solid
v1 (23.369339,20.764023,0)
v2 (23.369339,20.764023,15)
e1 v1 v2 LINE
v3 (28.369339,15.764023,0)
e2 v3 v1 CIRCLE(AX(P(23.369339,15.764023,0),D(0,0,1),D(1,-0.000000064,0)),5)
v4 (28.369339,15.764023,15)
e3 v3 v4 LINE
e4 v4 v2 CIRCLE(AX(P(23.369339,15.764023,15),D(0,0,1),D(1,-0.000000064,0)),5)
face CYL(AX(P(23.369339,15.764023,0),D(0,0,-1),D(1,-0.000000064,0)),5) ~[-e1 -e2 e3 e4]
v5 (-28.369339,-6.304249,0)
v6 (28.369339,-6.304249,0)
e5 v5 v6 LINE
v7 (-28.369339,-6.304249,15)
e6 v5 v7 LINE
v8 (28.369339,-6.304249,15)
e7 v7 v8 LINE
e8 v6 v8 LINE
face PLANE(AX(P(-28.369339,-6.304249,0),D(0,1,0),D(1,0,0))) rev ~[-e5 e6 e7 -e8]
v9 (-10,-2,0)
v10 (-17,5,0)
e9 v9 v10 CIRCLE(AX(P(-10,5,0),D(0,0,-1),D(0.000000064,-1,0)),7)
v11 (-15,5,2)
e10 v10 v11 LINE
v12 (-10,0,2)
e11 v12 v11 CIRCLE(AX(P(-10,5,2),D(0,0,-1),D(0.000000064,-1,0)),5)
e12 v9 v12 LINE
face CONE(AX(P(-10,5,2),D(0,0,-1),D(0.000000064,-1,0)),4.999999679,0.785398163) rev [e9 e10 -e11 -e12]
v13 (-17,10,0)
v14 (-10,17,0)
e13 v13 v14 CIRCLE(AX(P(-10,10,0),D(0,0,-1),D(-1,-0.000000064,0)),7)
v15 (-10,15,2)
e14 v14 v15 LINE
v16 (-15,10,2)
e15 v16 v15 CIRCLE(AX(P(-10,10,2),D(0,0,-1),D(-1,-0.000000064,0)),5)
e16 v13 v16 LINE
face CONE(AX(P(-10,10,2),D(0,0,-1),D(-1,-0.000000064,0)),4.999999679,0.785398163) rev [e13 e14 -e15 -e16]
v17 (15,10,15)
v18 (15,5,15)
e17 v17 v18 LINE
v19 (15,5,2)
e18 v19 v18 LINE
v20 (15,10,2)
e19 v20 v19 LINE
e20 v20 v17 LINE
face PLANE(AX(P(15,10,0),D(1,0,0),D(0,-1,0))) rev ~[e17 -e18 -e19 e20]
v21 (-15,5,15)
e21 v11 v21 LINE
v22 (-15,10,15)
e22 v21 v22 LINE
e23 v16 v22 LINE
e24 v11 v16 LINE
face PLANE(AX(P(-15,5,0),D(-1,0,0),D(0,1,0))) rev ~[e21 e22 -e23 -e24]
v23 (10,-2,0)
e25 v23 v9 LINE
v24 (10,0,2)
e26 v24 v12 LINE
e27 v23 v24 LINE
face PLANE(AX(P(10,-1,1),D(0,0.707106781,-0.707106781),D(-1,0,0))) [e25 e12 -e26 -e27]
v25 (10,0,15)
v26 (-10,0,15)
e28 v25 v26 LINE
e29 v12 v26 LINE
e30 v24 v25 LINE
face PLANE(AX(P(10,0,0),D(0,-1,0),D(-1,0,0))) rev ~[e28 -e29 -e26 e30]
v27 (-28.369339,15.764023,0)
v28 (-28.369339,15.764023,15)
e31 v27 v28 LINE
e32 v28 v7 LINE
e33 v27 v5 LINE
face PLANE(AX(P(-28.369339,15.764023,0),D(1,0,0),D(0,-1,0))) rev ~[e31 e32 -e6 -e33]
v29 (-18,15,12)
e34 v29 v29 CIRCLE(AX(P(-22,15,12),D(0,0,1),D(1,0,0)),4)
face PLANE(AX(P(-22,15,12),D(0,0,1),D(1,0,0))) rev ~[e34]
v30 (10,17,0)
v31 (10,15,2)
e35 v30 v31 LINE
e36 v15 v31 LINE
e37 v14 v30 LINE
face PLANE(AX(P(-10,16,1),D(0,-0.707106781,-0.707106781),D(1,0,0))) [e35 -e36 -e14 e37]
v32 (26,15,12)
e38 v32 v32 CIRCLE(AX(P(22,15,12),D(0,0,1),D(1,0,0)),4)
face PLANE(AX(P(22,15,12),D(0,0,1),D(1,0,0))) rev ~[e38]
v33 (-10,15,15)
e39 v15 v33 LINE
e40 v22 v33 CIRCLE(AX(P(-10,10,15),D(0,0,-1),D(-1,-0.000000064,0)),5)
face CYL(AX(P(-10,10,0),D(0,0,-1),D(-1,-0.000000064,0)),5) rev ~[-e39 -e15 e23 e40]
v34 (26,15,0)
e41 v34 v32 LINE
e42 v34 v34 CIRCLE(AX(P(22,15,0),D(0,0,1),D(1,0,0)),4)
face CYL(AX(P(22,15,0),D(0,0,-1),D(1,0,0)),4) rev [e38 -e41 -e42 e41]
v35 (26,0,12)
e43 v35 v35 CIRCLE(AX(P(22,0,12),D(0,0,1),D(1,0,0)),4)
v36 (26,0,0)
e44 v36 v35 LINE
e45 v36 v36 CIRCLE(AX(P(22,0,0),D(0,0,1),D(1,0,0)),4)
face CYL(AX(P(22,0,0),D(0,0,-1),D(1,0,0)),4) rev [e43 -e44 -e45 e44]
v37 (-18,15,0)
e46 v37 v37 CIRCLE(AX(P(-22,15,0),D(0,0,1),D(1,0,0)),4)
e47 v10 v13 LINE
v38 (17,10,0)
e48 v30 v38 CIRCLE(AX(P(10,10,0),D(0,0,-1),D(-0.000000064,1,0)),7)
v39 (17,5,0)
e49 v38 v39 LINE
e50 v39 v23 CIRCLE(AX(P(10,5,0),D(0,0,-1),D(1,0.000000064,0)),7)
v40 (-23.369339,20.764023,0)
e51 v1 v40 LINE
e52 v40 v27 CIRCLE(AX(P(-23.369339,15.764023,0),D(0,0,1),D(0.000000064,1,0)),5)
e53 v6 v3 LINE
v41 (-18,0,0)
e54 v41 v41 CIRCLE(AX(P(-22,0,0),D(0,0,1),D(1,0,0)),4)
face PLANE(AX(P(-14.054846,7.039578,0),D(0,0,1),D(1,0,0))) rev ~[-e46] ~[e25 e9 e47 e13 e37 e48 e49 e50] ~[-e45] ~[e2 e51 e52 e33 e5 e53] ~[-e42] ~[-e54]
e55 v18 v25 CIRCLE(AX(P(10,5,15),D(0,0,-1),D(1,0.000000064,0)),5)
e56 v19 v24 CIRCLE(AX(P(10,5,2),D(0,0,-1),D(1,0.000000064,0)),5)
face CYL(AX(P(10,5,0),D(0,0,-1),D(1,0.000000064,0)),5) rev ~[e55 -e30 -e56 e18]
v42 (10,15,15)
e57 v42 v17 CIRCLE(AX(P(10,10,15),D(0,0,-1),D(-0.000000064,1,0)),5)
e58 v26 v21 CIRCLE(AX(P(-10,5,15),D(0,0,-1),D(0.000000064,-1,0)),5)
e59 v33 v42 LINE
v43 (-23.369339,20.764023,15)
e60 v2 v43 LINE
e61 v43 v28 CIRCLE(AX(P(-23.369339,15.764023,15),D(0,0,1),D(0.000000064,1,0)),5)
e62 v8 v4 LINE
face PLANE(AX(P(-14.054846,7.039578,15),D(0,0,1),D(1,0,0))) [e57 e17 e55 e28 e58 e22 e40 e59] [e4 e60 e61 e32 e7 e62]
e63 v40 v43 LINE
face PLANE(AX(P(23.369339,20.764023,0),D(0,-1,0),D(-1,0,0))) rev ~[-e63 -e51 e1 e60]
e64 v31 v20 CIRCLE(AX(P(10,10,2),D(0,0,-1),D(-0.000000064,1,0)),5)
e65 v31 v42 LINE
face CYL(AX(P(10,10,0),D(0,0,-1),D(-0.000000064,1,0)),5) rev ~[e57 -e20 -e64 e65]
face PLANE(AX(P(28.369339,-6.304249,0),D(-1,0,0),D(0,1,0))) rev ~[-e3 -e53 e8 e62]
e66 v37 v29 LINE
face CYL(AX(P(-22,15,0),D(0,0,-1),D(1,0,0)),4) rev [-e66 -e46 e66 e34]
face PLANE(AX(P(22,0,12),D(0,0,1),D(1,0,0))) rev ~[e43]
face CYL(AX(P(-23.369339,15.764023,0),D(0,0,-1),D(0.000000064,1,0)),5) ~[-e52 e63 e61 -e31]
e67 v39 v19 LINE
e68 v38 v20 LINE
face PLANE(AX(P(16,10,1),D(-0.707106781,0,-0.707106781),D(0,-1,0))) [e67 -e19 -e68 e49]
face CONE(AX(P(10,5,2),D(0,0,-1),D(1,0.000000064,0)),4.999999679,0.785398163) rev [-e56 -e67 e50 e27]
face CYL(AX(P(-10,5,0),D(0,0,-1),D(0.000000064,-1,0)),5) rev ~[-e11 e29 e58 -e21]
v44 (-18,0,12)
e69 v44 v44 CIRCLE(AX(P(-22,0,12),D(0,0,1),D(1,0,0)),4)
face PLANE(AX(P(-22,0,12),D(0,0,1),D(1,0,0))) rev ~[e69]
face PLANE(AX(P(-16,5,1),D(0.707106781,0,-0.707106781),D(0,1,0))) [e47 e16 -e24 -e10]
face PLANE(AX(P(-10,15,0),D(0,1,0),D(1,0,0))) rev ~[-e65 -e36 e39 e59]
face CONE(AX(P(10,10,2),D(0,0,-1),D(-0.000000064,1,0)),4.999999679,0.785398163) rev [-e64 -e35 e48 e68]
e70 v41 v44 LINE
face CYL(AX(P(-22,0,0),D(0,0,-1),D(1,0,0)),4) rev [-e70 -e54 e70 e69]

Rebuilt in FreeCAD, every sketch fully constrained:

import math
import FreeCAD as App
import Part
import Sketcher


def edges_at(feature, points):
    """Names of the edges that pass closest to the given points."""
    edges = feature.Shape.Edges
    near = lambda p: min(range(len(edges)), key=lambda i: edges[i].distToShape(Part.Vertex(*p))[0])
    return sorted({f"Edge{near(p) + 1}" for p in points})

doc = App.newDocument("Part")
params = doc.addObject("Spreadsheet::Sheet", "Params")
for row, (alias, value) in enumerate([
    ("sketch1_radius", "5 mm"),
    ("sketch1_width", "20 mm"),
    ("sketch1_height", "5 mm"),
    ("pad1_length", "15 mm"),
    ("sketch2_diameter", "8 mm"),
    ("pocket1_length", "12 mm"),
    ("chamfer_size", "2 mm"),
], start=1):
    params.set(f"A{row}", alias)
    params.set(f"B{row}", "=" + value)
    params.setAlias(f"B{row}", alias)

body = doc.addObject("PartDesign::Body", "Body")

sketch1 = body.newObject("Sketcher::SketchObject", "Sketch")
sketch1.AttachmentSupport = (doc.getObject("XY_Plane"), [""])
sketch1.MapMode = "FlatFace"
sketch1.addGeometry(Part.ArcOfCircle(Part.Circle(App.Vector(-23.369339, 15.764023, 0), App.Vector(0, 0, 1), 5), math.radians(89.999996), math.radians(180.000004)), False)
sketch1.addGeometry(Part.LineSegment(App.Vector(-28.369339, 15.764023, 0), App.Vector(-28.369339, -6.304249, 0)), False)
sketch1.addGeometry(Part.LineSegment(App.Vector(-28.369339, -6.304249, 0), App.Vector(28.369339, -6.304249, 0)), False)
sketch1.addGeometry(Part.LineSegment(App.Vector(28.369339, -6.304249, 0), App.Vector(28.369339, 15.764023, 0)), False)
sketch1.addGeometry(Part.ArcOfCircle(Part.Circle(App.Vector(23.369339, 15.764023, 0), App.Vector(0, 0, 1), 5), math.radians(-0.000004), math.radians(90.000004)), False)
sketch1.addGeometry(Part.LineSegment(App.Vector(23.369339, 20.764023, 0), App.Vector(-23.369339, 20.764023, 0)), False)
sketch1.addGeometry(Part.LineSegment(App.Vector(-10, 15, 0), App.Vector(10, 15, 0)), False)
sketch1.addGeometry(Part.ArcOfCircle(Part.Circle(App.Vector(10, 10, 0), App.Vector(0, 0, 1), 5), math.radians(-0.000004), math.radians(90.000004)), False)
sketch1.addGeometry(Part.LineSegment(App.Vector(15, 10, 0), App.Vector(15, 5, 0)), False)
sketch1.addGeometry(Part.ArcOfCircle(Part.Circle(App.Vector(10, 5, 0), App.Vector(0, 0, 1), 5), math.radians(-90.000004), math.radians(0.000004)), False)
sketch1.addGeometry(Part.LineSegment(App.Vector(10, 0, 0), App.Vector(-10, 0, 0)), False)
sketch1.addGeometry(Part.ArcOfCircle(Part.Circle(App.Vector(-10, 5, 0), App.Vector(0, 0, 1), 5), math.radians(179.999996), math.radians(270.000004)), False)
sketch1.addGeometry(Part.LineSegment(App.Vector(-15, 5, 0), App.Vector(-15, 10, 0)), False)
sketch1.addGeometry(Part.ArcOfCircle(Part.Circle(App.Vector(-10, 10, 0), App.Vector(0, 0, 1), 5), math.radians(89.999996), math.radians(180.000004)), False)
sketch1.addConstraint(Sketcher.Constraint("Tangent", 0, 2, 1, 1))
sketch1.addConstraint(Sketcher.Constraint("Coincident", 1, 2, 2, 1))
sketch1.addConstraint(Sketcher.Constraint("Coincident", 2, 2, 3, 1))
sketch1.addConstraint(Sketcher.Constraint("Tangent", 3, 2, 4, 1))
sketch1.addConstraint(Sketcher.Constraint("Tangent", 4, 2, 5, 1))
sketch1.addConstraint(Sketcher.Constraint("Tangent", 5, 2, 0, 1))
sketch1.addConstraint(Sketcher.Constraint("Tangent", 6, 2, 7, 2))
sketch1.addConstraint(Sketcher.Constraint("Tangent", 7, 1, 8, 1))
sketch1.addConstraint(Sketcher.Constraint("Tangent", 8, 2, 9, 2))
sketch1.addConstraint(Sketcher.Constraint("Tangent", 9, 1, 10, 1))
sketch1.addConstraint(Sketcher.Constraint("Tangent", 10, 2, 11, 2))
sketch1.addConstraint(Sketcher.Constraint("Tangent", 11, 1, 12, 1))
sketch1.addConstraint(Sketcher.Constraint("Tangent", 12, 2, 13, 2))
sketch1.addConstraint(Sketcher.Constraint("Tangent", 13, 1, 6, 1))
sketch1.addConstraint(Sketcher.Constraint("Vertical", 1))
sketch1.addConstraint(Sketcher.Constraint("Horizontal", 2))
sketch1.addConstraint(Sketcher.Constraint("Vertical", 3))
sketch1.addConstraint(Sketcher.Constraint("Horizontal", 5))
sketch1.addConstraint(Sketcher.Constraint("Horizontal", 6))
sketch1.addConstraint(Sketcher.Constraint("Vertical", 8))
sketch1.addConstraint(Sketcher.Constraint("Horizontal", 10))
sketch1.addConstraint(Sketcher.Constraint("Vertical", 12))
sketch1.addConstraint(Sketcher.Constraint("Equal", 0, 4))
sketch1.addConstraint(Sketcher.Constraint("Equal", 4, 7))
sketch1.addConstraint(Sketcher.Constraint("Equal", 7, 9))
sketch1.addConstraint(Sketcher.Constraint("Equal", 9, 11))
sketch1.addConstraint(Sketcher.Constraint("Equal", 11, 13))
sketch1.addConstraint(Sketcher.Constraint("Symmetric", 9, 1, 10, 2, -1, 1))
sketch1.addConstraint(Sketcher.Constraint("Radius", 0, 5.0))
sketch1.addConstraint(Sketcher.Constraint("DistanceX", 6, 1, 6, 2, 20.0))
sketch1.addConstraint(Sketcher.Constraint("DistanceY", 8, 2, 8, 1, 5.0))
sketch1.addConstraint(Sketcher.Constraint("DistanceX", 2, 1, 2, 2, 56.738678))
sketch1.addConstraint(Sketcher.Constraint("DistanceY", 1, 2, 1, 1, 22.068272))
sketch1.addConstraint(Sketcher.Constraint("DistanceX", 0, 3, -1, 1, 23.369339))
sketch1.addConstraint(Sketcher.Constraint("DistanceY", 1, 2, -1, 1, 6.304249))
sketch1.setExpression("Constraints[28]", "Params.sketch1_radius")
sketch1.setExpression("Constraints[29]", "Params.sketch1_width")
sketch1.setExpression("Constraints[30]", "Params.sketch1_height")
pad1 = body.newObject("PartDesign::Pad", "Pad")
pad1.Profile = sketch1
pad1.setExpression("Length", "Params.pad1_length")

sketch2 = body.newObject("Sketcher::SketchObject", "Sketch001")
sketch2.AttachmentSupport = (doc.getObject("XY_Plane"), [""])
sketch2.MapMode = "FlatFace"
sketch2.addGeometry(Part.Circle(App.Vector(22, 15, 0), App.Vector(0, 0, 1), 4), False)
sketch2.addGeometry(Part.Circle(App.Vector(22, 0, 0), App.Vector(0, 0, 1), 4), False)
sketch2.addGeometry(Part.Circle(App.Vector(-22, 15, 0), App.Vector(0, 0, 1), 4), False)
sketch2.addGeometry(Part.Circle(App.Vector(-22, 0, 0), App.Vector(0, 0, 1), 4), False)
sketch2.addConstraint(Sketcher.Constraint("Equal", 0, 1))
sketch2.addConstraint(Sketcher.Constraint("Equal", 1, 2))
sketch2.addConstraint(Sketcher.Constraint("Equal", 2, 3))
sketch2.addConstraint(Sketcher.Constraint("Symmetric", 1, 3, 3, 3, -1, 1))
sketch2.addConstraint(Sketcher.Constraint("Symmetric", 0, 3, 2, 3, -2))
sketch2.addConstraint(Sketcher.Constraint("PointOnObject", 1, 3, -1))
sketch2.addConstraint(Sketcher.Constraint("Vertical", 0, 3, 1, 3))
sketch2.addConstraint(Sketcher.Constraint("Diameter", 0, 8.0))
sketch2.addConstraint(Sketcher.Constraint("DistanceX", -1, 1, 0, 3, 22.0))
sketch2.addConstraint(Sketcher.Constraint("DistanceY", -1, 1, 0, 3, 15.0))
sketch2.setExpression("Constraints[7]", "Params.sketch2_diameter")
pocket1 = body.newObject("PartDesign::Pocket", "Pocket")
pocket1.Profile = sketch2
pocket1.setExpression("Length", "Params.pocket1_length")
pocket1.Reversed = True
doc.recompute()

chamfer = body.newObject("PartDesign::Chamfer", "Chamfer")
chamfer.Base = (pocket1, edges_at(pocket1, [(0, 15, 0)]))
chamfer.setExpression("Size", "Params.chamfer_size")

doc.recompute()
